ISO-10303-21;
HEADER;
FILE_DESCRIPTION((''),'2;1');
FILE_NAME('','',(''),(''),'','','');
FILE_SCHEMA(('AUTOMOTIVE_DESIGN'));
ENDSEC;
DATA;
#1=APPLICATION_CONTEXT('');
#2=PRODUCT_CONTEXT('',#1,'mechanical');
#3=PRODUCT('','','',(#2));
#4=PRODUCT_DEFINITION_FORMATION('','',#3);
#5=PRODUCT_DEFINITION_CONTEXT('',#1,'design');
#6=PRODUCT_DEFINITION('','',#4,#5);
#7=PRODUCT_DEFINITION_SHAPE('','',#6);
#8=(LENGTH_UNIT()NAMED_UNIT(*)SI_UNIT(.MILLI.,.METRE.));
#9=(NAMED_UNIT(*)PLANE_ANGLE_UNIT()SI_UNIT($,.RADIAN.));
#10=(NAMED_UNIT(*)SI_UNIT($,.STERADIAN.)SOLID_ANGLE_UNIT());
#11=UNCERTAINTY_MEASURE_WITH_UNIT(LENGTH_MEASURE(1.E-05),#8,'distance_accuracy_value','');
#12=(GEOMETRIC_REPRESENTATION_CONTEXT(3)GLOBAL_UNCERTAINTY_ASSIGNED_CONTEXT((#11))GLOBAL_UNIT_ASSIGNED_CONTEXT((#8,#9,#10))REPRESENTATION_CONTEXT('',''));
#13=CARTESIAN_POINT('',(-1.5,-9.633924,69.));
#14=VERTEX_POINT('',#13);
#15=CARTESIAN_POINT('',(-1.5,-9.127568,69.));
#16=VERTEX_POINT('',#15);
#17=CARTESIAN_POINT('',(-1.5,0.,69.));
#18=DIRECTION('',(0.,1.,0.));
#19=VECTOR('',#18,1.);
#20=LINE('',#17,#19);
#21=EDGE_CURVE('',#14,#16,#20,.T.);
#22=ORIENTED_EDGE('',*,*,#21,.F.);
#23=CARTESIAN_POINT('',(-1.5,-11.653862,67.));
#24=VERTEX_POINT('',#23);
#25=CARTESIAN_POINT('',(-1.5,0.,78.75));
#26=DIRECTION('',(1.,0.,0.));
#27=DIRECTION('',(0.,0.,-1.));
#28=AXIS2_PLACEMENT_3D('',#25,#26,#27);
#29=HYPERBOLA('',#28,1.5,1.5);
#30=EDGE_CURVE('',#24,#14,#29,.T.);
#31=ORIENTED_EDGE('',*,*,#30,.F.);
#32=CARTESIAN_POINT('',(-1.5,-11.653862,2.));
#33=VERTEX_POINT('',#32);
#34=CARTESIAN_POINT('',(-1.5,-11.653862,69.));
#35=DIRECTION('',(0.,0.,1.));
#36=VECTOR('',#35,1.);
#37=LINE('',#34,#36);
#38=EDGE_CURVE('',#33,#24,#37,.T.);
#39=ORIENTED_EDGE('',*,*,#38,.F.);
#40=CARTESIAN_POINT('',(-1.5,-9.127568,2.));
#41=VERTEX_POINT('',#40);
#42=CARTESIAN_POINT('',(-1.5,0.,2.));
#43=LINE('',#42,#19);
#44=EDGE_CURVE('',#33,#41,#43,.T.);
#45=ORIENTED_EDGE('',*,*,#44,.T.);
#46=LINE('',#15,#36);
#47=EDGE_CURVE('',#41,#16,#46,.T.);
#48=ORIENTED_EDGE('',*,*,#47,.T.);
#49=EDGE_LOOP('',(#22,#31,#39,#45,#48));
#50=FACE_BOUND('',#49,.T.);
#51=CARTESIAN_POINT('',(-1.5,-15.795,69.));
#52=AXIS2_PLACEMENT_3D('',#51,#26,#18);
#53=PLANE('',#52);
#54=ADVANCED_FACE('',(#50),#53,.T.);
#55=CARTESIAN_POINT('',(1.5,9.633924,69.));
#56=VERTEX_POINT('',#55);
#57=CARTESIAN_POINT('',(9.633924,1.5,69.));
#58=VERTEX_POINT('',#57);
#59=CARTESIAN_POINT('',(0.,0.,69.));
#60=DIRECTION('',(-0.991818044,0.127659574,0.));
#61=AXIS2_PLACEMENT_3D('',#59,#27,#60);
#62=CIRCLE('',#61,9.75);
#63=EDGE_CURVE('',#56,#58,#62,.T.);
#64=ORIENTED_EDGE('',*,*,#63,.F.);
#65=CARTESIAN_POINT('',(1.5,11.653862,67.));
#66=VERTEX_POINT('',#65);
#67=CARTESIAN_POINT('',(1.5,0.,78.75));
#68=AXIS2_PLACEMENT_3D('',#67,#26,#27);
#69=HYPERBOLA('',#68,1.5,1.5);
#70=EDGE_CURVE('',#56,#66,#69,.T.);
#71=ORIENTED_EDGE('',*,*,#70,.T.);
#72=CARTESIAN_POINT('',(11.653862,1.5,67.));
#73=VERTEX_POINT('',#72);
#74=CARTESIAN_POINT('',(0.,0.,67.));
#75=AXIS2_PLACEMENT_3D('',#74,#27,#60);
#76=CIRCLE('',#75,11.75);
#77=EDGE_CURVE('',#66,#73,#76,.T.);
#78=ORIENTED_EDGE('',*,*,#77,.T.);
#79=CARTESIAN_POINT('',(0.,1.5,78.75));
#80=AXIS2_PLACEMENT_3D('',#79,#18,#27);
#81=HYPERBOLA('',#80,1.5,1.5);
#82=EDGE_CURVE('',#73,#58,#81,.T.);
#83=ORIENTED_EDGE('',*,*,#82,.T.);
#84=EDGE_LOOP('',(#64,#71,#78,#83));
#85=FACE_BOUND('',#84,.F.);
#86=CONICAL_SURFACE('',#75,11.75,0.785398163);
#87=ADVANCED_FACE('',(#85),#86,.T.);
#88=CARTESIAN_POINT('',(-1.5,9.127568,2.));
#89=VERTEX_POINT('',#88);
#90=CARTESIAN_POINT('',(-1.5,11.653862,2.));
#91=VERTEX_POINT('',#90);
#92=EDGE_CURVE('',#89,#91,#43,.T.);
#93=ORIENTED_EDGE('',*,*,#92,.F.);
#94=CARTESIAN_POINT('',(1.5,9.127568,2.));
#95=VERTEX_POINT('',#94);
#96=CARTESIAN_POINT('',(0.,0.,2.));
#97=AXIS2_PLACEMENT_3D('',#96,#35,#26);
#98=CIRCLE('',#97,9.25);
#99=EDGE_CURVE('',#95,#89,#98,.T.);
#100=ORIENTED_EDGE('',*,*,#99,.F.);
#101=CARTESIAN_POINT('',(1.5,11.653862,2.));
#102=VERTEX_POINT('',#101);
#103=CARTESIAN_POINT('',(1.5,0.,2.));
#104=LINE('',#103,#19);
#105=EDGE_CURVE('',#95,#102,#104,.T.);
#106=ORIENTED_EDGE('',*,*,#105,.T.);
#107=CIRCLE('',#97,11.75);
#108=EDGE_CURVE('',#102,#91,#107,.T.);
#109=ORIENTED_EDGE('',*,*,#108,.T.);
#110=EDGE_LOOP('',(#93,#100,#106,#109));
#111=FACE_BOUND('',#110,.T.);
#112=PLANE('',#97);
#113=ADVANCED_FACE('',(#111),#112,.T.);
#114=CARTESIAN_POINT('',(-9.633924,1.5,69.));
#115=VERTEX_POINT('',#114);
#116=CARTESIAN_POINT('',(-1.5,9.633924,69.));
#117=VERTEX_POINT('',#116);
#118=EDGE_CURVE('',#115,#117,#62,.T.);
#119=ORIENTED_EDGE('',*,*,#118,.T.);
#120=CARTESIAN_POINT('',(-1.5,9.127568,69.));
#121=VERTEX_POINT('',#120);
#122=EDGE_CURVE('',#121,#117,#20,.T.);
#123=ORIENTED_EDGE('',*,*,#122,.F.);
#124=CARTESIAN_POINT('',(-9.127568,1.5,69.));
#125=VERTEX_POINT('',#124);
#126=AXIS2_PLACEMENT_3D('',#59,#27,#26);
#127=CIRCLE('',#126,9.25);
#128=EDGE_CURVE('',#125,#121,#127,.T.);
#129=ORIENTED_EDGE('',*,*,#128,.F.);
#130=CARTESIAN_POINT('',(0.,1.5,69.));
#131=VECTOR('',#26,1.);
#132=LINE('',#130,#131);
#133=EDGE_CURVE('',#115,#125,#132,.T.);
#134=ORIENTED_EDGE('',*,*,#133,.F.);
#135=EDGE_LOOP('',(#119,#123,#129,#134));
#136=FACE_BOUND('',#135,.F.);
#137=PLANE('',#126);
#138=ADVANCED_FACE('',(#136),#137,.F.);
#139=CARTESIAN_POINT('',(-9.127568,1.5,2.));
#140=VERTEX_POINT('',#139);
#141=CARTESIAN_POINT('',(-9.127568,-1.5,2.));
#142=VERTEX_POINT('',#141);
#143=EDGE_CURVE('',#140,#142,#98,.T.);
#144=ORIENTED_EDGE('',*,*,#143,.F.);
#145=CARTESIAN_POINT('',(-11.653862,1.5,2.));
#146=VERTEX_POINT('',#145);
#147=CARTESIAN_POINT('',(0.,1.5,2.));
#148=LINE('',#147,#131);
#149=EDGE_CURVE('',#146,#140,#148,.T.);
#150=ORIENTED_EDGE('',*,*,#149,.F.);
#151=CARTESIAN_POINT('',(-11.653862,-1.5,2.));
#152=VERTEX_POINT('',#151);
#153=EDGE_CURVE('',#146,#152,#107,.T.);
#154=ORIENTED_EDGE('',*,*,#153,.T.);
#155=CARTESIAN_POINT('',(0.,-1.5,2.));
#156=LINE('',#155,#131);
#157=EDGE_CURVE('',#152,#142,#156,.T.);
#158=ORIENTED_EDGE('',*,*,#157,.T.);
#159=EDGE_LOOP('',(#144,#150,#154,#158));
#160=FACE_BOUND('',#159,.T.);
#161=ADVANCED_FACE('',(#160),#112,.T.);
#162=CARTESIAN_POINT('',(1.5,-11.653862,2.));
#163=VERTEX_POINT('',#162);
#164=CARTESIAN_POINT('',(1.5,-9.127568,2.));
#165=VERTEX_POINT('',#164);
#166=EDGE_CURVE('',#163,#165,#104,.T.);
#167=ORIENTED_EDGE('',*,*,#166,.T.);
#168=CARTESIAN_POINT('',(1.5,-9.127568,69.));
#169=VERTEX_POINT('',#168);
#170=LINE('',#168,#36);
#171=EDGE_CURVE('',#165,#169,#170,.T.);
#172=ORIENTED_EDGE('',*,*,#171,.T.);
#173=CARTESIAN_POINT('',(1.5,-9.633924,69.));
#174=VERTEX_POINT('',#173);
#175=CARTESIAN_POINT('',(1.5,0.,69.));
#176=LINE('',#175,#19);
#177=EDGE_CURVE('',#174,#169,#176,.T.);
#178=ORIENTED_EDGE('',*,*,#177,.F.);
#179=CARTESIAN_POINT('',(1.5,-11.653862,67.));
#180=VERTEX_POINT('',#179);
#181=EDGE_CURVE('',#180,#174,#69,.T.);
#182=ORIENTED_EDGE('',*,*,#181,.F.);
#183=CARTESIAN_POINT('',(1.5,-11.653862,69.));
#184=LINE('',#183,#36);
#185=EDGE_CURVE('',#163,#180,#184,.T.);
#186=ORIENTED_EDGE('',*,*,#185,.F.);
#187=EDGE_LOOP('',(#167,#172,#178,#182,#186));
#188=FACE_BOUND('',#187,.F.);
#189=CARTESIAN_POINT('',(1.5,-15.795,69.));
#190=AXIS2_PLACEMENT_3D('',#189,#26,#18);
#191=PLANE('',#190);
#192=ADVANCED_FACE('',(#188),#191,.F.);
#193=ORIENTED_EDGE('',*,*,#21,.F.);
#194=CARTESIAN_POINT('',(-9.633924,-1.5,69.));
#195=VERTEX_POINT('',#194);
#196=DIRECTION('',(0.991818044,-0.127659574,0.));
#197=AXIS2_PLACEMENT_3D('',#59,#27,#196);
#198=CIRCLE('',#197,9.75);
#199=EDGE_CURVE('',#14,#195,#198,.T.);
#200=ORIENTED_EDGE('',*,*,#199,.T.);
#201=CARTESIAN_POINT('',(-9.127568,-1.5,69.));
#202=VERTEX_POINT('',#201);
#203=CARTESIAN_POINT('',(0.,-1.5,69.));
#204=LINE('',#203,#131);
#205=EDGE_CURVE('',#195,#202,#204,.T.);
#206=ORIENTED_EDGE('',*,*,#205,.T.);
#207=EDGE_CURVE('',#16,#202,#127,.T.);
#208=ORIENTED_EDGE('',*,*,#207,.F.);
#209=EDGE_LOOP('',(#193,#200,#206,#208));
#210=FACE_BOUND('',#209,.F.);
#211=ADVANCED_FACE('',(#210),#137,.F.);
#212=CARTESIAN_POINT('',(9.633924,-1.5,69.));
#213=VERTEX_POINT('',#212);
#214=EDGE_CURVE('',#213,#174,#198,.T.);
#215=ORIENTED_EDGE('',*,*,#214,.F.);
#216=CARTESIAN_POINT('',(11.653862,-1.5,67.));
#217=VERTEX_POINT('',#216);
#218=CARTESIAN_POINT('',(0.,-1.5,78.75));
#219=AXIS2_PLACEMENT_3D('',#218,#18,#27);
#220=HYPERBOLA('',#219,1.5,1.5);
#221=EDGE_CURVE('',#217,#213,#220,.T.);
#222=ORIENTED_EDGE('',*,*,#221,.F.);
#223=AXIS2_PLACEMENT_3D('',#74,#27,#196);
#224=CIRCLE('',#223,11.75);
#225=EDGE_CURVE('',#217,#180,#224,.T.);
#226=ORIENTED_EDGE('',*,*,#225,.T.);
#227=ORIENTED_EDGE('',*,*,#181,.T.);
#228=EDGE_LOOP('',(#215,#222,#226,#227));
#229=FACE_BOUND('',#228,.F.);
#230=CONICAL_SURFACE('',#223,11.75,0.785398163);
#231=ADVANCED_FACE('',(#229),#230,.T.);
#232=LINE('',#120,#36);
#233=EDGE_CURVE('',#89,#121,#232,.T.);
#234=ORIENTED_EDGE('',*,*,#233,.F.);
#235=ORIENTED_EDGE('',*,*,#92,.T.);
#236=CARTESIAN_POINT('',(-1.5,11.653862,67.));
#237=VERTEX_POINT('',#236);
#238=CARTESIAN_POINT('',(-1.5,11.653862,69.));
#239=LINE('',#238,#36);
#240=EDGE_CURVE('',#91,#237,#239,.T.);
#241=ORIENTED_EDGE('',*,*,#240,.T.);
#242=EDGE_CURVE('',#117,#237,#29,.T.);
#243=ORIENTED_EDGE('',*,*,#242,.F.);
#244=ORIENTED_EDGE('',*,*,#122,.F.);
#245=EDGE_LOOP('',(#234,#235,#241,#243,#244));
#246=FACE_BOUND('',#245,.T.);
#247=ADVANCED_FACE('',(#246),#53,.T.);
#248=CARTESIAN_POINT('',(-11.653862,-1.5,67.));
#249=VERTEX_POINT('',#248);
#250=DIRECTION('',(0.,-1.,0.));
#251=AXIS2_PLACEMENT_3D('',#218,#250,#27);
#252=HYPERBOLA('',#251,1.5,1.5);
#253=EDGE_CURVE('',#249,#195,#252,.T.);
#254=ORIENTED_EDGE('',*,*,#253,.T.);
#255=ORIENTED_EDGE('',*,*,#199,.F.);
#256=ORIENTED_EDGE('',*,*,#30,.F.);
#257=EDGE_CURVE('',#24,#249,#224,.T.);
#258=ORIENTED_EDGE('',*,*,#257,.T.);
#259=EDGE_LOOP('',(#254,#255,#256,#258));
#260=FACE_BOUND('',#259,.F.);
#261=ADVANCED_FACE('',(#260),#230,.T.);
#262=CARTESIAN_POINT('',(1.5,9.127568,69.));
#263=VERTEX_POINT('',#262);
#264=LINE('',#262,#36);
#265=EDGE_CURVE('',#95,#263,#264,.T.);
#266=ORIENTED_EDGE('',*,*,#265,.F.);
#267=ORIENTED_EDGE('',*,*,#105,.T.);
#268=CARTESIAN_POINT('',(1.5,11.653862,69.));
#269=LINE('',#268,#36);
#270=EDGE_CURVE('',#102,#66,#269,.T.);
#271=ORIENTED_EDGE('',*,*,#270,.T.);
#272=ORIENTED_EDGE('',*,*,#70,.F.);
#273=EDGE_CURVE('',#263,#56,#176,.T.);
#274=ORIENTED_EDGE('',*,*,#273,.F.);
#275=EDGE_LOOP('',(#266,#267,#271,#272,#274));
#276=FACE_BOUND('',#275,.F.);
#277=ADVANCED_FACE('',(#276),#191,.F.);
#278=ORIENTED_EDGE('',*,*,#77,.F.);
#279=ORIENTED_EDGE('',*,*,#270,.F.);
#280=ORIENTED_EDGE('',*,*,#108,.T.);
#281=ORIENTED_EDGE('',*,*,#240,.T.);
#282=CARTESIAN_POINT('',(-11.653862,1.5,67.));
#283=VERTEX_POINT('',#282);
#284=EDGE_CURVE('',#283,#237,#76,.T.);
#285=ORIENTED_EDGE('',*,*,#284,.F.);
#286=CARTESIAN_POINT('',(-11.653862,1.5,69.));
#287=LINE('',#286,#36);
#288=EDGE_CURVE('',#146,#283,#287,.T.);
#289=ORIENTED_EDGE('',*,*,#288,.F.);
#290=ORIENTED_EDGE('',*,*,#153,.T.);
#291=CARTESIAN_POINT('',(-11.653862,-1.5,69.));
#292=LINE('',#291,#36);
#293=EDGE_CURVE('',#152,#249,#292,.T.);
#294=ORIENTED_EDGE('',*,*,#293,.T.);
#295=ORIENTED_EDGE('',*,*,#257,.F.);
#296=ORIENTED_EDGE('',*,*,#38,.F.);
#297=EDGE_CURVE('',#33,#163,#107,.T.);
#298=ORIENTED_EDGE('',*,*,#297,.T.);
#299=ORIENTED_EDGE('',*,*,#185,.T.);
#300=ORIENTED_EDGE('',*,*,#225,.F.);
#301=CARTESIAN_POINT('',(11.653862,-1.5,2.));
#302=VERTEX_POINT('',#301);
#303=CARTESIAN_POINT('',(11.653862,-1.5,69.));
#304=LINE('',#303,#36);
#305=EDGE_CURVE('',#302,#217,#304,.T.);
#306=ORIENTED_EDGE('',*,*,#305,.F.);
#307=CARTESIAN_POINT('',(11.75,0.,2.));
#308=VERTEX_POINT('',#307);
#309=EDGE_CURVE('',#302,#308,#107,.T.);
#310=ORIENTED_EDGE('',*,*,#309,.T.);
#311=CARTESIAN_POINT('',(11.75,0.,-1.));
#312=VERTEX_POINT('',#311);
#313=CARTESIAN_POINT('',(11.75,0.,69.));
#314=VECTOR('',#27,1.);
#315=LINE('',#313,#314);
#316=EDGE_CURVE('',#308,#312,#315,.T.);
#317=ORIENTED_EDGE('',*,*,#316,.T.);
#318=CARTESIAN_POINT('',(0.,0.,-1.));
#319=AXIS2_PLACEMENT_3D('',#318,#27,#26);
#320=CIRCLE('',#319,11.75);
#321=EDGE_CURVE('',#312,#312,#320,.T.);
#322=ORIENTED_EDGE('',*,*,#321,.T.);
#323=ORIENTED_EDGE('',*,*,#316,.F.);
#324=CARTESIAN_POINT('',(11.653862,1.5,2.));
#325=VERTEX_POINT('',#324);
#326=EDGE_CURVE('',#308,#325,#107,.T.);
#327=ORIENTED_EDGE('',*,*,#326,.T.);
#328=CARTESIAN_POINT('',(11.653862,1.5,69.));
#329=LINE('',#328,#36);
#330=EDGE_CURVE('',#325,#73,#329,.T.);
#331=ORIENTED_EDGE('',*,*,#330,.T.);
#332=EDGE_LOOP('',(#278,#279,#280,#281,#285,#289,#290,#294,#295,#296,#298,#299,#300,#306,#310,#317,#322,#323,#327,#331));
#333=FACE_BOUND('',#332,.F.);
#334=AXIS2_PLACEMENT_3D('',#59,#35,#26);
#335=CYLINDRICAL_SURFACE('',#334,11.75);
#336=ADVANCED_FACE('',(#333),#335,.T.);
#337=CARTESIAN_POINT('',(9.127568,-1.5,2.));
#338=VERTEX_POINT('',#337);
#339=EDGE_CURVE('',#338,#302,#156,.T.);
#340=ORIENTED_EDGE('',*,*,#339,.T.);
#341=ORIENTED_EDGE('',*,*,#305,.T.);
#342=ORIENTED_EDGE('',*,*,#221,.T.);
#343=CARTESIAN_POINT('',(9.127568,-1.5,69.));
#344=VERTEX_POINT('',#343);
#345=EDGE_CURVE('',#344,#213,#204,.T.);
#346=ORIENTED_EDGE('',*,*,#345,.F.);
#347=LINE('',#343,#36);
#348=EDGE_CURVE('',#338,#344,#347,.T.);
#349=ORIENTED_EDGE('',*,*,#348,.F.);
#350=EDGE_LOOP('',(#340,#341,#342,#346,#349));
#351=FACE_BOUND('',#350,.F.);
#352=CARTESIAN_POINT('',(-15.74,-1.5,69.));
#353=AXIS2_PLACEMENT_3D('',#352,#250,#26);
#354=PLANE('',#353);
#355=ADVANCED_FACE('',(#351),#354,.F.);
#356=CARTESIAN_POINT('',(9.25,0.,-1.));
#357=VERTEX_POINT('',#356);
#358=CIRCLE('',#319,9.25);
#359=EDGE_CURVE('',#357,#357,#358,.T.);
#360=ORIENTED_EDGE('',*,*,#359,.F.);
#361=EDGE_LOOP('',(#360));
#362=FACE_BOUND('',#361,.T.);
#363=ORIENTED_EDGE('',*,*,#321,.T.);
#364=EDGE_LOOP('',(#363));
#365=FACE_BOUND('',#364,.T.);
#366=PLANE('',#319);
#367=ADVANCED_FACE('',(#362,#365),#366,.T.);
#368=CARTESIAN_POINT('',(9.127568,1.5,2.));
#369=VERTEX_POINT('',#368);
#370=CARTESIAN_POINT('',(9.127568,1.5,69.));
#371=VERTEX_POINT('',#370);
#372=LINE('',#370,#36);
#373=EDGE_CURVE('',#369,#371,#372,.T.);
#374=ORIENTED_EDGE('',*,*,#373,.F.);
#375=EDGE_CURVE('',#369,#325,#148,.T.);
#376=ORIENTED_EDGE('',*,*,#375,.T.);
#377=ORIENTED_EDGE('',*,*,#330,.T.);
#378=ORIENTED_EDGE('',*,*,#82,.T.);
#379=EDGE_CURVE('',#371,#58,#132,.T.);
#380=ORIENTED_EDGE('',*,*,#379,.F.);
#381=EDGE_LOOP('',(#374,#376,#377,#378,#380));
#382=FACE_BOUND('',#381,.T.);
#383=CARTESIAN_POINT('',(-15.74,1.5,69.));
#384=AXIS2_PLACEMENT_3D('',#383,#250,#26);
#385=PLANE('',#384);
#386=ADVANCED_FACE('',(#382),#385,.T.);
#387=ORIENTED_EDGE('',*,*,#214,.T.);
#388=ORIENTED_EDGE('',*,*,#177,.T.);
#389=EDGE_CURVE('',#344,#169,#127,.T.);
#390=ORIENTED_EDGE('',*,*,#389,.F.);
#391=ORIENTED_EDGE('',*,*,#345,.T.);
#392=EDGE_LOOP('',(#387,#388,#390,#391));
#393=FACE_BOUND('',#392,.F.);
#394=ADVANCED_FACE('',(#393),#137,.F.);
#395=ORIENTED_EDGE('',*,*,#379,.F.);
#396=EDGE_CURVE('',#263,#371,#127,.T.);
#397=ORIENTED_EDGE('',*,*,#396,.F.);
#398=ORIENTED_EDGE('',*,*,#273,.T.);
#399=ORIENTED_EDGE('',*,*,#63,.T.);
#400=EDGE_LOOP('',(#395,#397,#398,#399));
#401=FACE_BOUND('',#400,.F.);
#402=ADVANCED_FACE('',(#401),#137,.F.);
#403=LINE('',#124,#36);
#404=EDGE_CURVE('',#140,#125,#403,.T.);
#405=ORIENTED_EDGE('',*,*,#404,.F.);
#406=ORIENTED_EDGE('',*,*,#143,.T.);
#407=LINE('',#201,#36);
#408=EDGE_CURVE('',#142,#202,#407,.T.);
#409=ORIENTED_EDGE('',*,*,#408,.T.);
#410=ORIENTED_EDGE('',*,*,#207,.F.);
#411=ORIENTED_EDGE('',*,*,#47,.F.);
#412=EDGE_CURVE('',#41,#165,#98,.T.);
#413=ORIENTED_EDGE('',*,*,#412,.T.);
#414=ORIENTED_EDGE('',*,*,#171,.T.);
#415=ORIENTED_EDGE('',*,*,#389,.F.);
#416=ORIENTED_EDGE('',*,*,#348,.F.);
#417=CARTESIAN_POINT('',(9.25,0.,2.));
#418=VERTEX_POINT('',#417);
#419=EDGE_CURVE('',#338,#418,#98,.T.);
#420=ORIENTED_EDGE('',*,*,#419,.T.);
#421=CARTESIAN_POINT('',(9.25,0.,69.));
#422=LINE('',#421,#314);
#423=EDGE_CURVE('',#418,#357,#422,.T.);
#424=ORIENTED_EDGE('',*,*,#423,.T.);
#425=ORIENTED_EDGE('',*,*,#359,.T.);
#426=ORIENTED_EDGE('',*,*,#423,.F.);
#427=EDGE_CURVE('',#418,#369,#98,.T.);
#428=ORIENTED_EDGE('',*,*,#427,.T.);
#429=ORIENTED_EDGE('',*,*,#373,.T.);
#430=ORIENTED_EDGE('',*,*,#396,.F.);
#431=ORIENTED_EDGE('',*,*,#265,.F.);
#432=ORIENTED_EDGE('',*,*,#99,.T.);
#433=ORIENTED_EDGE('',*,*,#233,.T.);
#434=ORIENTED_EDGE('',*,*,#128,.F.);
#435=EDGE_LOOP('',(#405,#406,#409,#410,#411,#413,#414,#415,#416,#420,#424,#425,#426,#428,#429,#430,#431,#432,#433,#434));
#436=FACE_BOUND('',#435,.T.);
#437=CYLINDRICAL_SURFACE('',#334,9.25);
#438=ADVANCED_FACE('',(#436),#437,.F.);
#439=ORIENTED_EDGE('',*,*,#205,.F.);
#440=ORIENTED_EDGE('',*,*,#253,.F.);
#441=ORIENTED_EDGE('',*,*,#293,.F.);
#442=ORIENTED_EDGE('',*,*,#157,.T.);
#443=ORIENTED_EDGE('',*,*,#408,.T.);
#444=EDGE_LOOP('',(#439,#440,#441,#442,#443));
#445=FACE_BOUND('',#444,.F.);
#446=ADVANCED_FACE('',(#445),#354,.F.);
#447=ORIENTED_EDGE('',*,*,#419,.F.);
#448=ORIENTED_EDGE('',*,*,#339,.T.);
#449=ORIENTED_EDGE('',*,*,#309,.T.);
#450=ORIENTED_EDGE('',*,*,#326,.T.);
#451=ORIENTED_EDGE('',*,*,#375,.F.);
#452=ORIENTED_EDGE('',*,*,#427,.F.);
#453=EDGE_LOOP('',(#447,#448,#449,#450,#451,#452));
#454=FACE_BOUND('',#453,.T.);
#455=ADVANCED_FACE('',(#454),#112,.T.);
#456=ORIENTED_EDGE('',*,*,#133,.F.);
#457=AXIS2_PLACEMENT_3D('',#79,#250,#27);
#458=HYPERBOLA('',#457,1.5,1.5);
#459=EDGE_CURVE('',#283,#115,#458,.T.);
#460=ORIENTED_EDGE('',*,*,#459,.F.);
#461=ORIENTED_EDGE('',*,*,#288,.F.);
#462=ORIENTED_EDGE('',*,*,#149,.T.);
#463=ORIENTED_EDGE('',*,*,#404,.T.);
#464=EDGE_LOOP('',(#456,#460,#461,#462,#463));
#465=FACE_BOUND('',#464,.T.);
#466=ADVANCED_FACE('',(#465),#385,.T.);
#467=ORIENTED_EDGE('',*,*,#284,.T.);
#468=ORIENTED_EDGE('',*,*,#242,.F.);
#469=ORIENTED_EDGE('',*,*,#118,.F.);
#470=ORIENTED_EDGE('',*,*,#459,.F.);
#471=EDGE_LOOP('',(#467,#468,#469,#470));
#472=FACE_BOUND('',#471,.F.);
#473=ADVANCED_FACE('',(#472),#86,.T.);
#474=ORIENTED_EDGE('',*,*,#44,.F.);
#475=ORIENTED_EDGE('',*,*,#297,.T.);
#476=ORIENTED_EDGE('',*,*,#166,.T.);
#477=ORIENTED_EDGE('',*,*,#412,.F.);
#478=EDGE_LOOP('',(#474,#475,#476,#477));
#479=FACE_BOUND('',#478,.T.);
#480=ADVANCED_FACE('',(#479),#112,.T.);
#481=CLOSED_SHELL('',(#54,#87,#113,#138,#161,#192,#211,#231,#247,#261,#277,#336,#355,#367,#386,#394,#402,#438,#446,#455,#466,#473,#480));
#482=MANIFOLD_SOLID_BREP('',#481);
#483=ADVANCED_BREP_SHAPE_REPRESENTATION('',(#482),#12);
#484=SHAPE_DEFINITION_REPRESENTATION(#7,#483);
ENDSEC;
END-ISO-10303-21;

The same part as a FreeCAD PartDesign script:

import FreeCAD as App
import Part
import Sketcher


def edges_at(feature, points):
    """Names of the edges that pass closest to the given points."""
    edges = feature.Shape.Edges
    near = lambda p: min(range(len(edges)), key=lambda i: edges[i].distToShape(Part.Vertex(*p))[0])
    return sorted({f"Edge{near(p) + 1}" for p in points})


def add_polygon(sketch, points):
    """Adds a closed chain of lines whose ends are joined by coincident constraints."""
    first, n = sketch.GeometryCount, len(points)
    for a, b in zip(points, points[1:] + points[:1]):
        sketch.addGeometry(Part.LineSegment(App.Vector(*a, 0), App.Vector(*b, 0)), False)
    for i in range(n):
        sketch.addConstraint(Sketcher.Constraint("Coincident", first + i, 2, first + (i + 1) % n, 1))

doc = App.newDocument("Part")
body = doc.addObject("PartDesign::Body", "Body")

sketch1 = body.newObject("Sketcher::SketchObject", "Sketch")
sketch1.AttachmentSupport = (doc.getObject("XY_Plane"), [""])
sketch1.MapMode = "FlatFace"
sketch1.addGeometry([
    Part.Circle(App.Vector(0, 0, 0), App.Vector(0, 0, 1), 11.75),
    Part.Circle(App.Vector(0, 0, 0), App.Vector(0, 0, 1), 9.25),
], False)
sketch1.addConstraint([
    Sketcher.Constraint("Coincident", 0, 3, -1, 1),
    Sketcher.Constraint("Coincident", 1, 3, -1, 1),
    Sketcher.Constraint("Diameter", 0, 23.5),
    Sketcher.Constraint("Diameter", 1, 18.5),
])
pad1 = body.newObject("PartDesign::Pad", "Pad")
pad1.Profile = sketch1
pad1.Length = 70

sketch2 = body.newObject("Sketcher::SketchObject", "Sketch001")
sketch2.AttachmentSupport = (doc.getObject("XY_Plane"), [""])
sketch2.MapMode = "FlatFace"
add_polygon(sketch2, [(-15.74, -1.5), (-15.74, 1.5), (15.74, 1.5), (15.74, -1.5)])
sketch2.addConstraint([
    Sketcher.Constraint("Vertical", 0),
    Sketcher.Constraint("Horizontal", 1),
    Sketcher.Constraint("Vertical", 2),
    Sketcher.Constraint("Horizontal", 3),
    Sketcher.Constraint("Symmetric", 0, 2, 2, 2, -1, 1),
    Sketcher.Constraint("DistanceY", 0, 1, 0, 2, 3.0),
    Sketcher.Constraint("DistanceX", 1, 1, 1, 2, 31.48),
])
pocket1 = body.newObject("PartDesign::Pocket", "Pocket")
pocket1.Profile = sketch2
pocket1.Length = 67
pocket1.Reversed = True
doc.recompute()

chamfer = body.newObject("PartDesign::Chamfer", "Chamfer")
chamfer.Base = (pocket1, edges_at(pocket1, [(0, 11.75, 0), (0, -11.75, 0)]))
chamfer.Size = 2

sketch3 = body.newObject("Sketcher::SketchObject", "Sketch002")
sketch3.AttachmentSupport = (doc.getObject("XY_Plane"), [""])
sketch3.MapMode = "FlatFace"
add_polygon(sketch3, [(-1.5, -15.795), (-1.5, 15.795), (1.5, 15.795), (1.5, -15.795)])
sketch3.addConstraint([
    Sketcher.Constraint("Vertical", 0),
    Sketcher.Constraint("Horizontal", 1),
    Sketcher.Constraint("Vertical", 2),
    Sketcher.Constraint("Horizontal", 3),
    Sketcher.Constraint("Symmetric", 0, 2, 2, 2, -1, 1),
    Sketcher.Constraint("DistanceX", 1, 1, 1, 2, 3.0),
    Sketcher.Constraint("DistanceY", 0, 1, 0, 2, 31.59),
])
pocket2 = body.newObject("PartDesign::Pocket", "Pocket001")
pocket2.Profile = sketch3
pocket2.Length = 67
pocket2.Reversed = True
body2 = doc.addObject("PartDesign::Body", "Body001")
doc.recompute()

body.Placement = App.Placement(App.Vector(0, 0, 69), App.Rotation(App.Vector(1, 0, 0), 180))
boolean = body2.newObject("PartDesign::Boolean", "Boolean")
boolean.Type = "Fuse"
boolean.addObjects([body])

doc.recompute()
